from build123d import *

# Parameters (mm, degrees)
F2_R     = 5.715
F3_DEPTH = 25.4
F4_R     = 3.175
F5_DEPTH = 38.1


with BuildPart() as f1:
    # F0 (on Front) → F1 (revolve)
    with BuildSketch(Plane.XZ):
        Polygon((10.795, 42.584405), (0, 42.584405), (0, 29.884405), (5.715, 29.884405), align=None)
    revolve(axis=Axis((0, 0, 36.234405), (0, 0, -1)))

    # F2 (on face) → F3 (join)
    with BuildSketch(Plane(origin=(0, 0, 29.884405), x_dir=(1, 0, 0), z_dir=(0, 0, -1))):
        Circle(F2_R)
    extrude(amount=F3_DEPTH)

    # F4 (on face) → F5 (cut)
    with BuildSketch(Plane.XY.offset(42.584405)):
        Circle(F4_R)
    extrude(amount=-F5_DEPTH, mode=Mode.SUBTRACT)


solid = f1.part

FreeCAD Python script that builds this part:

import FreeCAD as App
import Part
import Sketcher
from FreeCAD import Vector
Q = App.Units.Quantity

doc = App.newDocument("Part")
params = doc.addObject("Spreadsheet::Sheet", "Params")
for row, (alias, value) in enumerate([
    ("sketch1_height", "0.5 in"),
    ("sketch1_width", "0.425 in"),
    ("revolution_angle", "360 deg"),
    ("sketch2_diameter", "0.45 in"),
    ("pad1_length", "1 in"),
    ("sketch3_diameter", "0.25 in"),
    ("pocket1_length", "1.5 in"),
], start=1):
    params.set(f"A{row}", alias)
    params.set(f"B{row}", "=" + value)
    params.setAlias(f"B{row}", alias)

body = doc.addObject("PartDesign::Body", "Body")

sketch1 = body.newObject("Sketcher::SketchObject", "Sketch")
sketch1.AttachmentSupport = (doc.getObject("XZ_Plane"), [""])
sketch1.MapMode = "FlatFace"
sketch1.addGeometry([
    Part.LineSegment(Vector(10.795, 42.584405, 0), Vector(0, 42.584405, 0)),
    Part.LineSegment(Vector(0, 42.584405, 0), Vector(0, 29.884405, 0)),
    Part.LineSegment(Vector(0, 29.884405, 0), Vector(5.715, 29.884405, 0)),
    Part.LineSegment(Vector(5.715, 29.884405, 0), Vector(10.795, 42.584405, 0)),
], False)
sketch1.addConstraint([
    Sketcher.Constraint("Coincident", 0, 2, 1, 1),
    Sketcher.Constraint("Coincident", 1, 2, 2, 1),
    Sketcher.Constraint("Coincident", 2, 2, 3, 1),
    Sketcher.Constraint("Coincident", 3, 2, 0, 1),
    Sketcher.Constraint("Horizontal", 0),
    Sketcher.Constraint("Vertical", 1),
    Sketcher.Constraint("Horizontal", 2),
    Sketcher.Constraint("PointOnObject", 0, 2, -2),
    Sketcher.Constraint("DistanceY", 1, 2, 1, 1, Q("0.5 in")),
    Sketcher.Constraint("DistanceX", 2, 2, 3, 2, Q("0.2 in")),
    Sketcher.Constraint("DistanceX", 0, 2, 0, 1, Q("0.425 in")),
    Sketcher.Constraint("DistanceY", -1, 1, 0, 2, Q("42.584405 mm")),
])
sketch1.setExpression("Constraints[8]", "Params.sketch1_height")
sketch1.setExpression("Constraints[10]", "Params.sketch1_width")
revolution = body.newObject("PartDesign::Revolution", "Revolution")
revolution.Profile = sketch1
revolution.ReferenceAxis = (sketch1, ["V_Axis"])
revolution.setExpression("Angle", "Params.revolution_angle")

sketch2 = body.newObject("Sketcher::SketchObject", "Sketch001")
sketch2.AttachmentSupport = (doc.getObject("XY_Plane"), [""])
sketch2.MapMode = "FlatFace"
sketch2.AttachmentOffset = App.Placement(Vector(0, 0, 29.884405), App.Rotation())
sketch2.addGeometry(Part.Circle(Vector(0, 0, 0), Vector(0, 0, 1), 5.715), False)
sketch2.addConstraint([
    Sketcher.Constraint("Coincident", 0, 3, -1, 1),
    Sketcher.Constraint("Diameter", 0, Q("0.45 in")),
])
sketch2.setExpression("Constraints[1]", "Params.sketch2_diameter")
pad1 = body.newObject("PartDesign::Pad", "Pad")
pad1.Profile = sketch2
pad1.setExpression("Length", "Params.pad1_length")
pad1.Reversed = True

sketch3 = body.newObject("Sketcher::SketchObject", "Sketch002")
sketch3.AttachmentSupport = (doc.getObject("XY_Plane"), [""])
sketch3.MapMode = "FlatFace"
sketch3.AttachmentOffset = App.Placement(Vector(0, 0, 42.584405), App.Rotation())
sketch3.addGeometry(Part.Circle(Vector(0, 0, 0), Vector(0, 0, 1), 3.175), False)
sketch3.addConstraint([
    Sketcher.Constraint("Coincident", 0, 3, -1, 1),
    Sketcher.Constraint("Diameter", 0, Q("0.25 in")),
])
sketch3.setExpression("Constraints[1]", "Params.sketch3_diameter")
pocket1 = body.newObject("PartDesign::Pocket", "Pocket")
pocket1.Profile = sketch3
pocket1.setExpression("Length", "Params.pocket1_length")

doc.recompute()
